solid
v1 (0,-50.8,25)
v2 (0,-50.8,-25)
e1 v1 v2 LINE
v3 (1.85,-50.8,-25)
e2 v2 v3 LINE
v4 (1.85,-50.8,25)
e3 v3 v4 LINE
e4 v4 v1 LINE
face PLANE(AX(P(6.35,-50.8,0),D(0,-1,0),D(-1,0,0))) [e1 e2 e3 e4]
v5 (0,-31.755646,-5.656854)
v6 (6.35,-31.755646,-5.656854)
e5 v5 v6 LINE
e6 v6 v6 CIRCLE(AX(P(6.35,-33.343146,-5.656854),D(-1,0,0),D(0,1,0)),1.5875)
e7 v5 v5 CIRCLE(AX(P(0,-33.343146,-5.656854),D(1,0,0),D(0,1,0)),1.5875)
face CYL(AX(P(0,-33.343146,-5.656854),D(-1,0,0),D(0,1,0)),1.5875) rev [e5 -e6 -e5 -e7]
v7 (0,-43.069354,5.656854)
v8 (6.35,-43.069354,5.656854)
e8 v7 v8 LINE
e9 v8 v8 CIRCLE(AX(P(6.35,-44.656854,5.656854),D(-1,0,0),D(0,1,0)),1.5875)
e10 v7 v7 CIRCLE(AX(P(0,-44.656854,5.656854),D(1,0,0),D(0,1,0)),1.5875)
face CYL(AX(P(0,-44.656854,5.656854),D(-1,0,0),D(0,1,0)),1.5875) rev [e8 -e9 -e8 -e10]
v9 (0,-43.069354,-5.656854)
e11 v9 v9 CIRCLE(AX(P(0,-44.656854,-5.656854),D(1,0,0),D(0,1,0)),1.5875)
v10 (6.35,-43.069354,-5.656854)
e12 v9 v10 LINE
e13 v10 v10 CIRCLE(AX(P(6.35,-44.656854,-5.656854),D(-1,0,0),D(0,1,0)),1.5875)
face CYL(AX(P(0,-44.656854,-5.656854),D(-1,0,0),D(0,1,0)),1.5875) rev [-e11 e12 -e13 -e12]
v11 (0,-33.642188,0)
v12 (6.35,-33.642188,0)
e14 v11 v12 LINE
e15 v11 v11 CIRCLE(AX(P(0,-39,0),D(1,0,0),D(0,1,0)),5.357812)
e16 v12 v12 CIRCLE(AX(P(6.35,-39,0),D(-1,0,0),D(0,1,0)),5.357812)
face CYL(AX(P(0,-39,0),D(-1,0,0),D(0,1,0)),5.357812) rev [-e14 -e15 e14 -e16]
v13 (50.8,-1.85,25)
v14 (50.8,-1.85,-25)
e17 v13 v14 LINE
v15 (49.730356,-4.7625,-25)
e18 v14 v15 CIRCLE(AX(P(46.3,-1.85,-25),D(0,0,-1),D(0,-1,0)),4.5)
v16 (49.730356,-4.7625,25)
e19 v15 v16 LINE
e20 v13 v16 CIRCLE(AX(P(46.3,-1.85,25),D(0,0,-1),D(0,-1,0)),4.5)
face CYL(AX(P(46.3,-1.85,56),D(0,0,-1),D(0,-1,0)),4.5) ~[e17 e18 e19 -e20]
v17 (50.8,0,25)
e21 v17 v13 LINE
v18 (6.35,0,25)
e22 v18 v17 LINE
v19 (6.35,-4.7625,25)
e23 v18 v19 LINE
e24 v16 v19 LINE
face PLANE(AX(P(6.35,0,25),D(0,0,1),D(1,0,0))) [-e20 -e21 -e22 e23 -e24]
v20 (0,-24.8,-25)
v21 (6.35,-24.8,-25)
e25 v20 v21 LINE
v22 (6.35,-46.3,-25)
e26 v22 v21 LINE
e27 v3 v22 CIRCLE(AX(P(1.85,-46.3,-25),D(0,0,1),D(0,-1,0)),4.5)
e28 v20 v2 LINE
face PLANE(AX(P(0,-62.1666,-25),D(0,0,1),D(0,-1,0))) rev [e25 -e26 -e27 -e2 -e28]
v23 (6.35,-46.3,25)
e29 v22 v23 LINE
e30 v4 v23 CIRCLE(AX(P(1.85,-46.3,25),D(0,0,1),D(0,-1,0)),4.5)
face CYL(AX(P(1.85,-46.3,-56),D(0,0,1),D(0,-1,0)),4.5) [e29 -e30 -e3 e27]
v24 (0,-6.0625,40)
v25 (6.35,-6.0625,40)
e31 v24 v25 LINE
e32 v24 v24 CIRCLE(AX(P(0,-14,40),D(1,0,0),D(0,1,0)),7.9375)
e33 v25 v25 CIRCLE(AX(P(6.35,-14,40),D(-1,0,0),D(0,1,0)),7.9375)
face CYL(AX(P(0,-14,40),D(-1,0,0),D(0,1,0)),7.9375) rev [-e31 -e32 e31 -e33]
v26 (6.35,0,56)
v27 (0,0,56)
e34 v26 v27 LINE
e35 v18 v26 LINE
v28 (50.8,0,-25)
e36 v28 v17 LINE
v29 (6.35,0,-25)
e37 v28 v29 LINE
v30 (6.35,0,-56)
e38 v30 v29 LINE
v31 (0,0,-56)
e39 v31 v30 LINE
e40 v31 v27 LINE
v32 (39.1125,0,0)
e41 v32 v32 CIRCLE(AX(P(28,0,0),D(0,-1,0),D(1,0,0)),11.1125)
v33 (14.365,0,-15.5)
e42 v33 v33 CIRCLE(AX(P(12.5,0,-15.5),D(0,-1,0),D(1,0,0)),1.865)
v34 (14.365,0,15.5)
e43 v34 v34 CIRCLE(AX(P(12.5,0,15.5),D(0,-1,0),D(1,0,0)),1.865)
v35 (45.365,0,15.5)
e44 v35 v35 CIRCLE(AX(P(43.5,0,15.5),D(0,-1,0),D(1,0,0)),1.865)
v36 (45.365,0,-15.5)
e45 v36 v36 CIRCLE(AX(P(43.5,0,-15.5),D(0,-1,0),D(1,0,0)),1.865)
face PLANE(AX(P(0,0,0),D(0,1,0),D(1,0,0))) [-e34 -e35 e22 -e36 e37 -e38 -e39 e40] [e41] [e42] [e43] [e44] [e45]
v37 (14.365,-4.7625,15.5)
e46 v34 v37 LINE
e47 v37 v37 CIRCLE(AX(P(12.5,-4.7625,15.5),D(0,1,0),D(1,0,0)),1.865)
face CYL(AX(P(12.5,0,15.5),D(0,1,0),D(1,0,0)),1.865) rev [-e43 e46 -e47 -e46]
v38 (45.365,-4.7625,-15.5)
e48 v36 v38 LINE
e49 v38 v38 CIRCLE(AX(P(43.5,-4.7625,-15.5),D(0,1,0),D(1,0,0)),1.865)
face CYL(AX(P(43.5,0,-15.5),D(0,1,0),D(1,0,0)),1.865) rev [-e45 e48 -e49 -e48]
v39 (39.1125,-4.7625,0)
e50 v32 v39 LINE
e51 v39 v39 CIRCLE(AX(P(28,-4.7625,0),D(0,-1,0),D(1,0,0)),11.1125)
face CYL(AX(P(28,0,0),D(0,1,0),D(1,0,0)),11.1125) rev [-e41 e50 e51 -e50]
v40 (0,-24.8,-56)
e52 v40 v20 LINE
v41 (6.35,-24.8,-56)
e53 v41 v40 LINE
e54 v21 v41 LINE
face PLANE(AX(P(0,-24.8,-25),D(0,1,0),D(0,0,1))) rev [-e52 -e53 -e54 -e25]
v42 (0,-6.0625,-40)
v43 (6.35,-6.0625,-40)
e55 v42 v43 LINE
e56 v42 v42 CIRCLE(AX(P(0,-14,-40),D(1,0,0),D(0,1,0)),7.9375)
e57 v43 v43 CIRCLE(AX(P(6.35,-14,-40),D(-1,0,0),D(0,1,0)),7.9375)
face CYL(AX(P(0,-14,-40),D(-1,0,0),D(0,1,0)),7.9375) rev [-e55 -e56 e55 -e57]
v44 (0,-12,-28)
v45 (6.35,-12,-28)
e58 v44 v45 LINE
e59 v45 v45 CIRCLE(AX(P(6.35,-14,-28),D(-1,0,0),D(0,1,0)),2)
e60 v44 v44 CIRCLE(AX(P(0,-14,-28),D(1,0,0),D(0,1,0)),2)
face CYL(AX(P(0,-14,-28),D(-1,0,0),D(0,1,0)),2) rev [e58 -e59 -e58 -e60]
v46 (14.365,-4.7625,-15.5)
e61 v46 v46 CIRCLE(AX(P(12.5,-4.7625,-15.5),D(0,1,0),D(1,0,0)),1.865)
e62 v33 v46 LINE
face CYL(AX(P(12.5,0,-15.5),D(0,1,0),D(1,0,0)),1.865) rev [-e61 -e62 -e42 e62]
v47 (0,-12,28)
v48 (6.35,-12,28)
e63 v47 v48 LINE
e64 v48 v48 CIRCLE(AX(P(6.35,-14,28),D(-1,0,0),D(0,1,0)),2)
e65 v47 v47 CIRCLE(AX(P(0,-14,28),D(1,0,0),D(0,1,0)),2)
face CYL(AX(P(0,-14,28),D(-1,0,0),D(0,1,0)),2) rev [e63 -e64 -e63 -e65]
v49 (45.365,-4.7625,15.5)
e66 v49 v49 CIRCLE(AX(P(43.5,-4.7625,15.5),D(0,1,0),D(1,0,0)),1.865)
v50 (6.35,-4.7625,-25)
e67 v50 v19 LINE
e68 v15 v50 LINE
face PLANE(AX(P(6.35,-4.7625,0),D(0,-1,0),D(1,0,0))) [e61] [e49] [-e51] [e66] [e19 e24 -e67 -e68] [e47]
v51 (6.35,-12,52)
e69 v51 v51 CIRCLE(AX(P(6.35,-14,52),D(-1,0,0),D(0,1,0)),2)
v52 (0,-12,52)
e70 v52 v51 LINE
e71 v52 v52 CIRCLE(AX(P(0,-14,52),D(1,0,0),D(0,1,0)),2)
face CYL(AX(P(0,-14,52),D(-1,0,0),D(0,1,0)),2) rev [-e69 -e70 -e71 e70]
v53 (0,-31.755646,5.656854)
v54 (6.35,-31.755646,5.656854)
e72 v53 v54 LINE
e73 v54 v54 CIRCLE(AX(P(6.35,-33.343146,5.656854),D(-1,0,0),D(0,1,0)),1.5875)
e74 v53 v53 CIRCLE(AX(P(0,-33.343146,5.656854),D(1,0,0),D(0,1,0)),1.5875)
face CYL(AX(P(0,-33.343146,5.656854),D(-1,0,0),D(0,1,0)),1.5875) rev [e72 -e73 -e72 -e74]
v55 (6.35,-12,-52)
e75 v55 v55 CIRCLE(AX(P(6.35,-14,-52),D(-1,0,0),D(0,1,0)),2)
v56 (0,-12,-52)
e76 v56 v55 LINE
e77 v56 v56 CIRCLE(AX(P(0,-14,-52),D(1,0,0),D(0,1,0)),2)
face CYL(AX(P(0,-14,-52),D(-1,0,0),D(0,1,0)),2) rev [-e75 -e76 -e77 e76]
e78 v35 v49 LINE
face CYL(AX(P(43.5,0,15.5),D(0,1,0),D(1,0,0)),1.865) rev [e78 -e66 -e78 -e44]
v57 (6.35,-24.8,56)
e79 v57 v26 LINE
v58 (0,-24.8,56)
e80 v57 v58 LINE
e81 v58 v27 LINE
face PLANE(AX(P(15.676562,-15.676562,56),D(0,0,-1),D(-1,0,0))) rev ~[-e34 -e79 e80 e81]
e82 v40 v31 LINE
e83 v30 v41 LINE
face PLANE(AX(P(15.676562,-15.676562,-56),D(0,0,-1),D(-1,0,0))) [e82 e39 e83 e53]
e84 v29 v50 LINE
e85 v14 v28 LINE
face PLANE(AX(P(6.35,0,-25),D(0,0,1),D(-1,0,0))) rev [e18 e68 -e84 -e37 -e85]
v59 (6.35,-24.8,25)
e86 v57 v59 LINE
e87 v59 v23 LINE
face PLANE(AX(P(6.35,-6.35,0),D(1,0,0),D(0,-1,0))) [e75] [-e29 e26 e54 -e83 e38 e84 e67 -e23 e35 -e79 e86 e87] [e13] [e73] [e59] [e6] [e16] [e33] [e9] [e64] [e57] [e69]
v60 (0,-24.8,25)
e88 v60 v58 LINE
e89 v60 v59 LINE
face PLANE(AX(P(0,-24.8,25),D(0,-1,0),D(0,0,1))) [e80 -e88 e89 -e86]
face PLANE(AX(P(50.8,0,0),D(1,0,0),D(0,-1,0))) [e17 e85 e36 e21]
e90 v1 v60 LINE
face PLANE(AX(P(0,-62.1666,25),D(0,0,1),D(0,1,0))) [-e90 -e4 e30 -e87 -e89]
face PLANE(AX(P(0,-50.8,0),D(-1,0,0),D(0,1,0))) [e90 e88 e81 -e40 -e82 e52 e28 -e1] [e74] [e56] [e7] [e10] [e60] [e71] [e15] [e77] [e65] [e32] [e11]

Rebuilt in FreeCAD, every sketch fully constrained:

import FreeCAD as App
import Part
import Sketcher

V = App.Vector
Q = App.Units.Quantity


def edges_at(feature, points):
    """Names of the edges that pass closest to the given points."""
    edges = feature.Shape.Edges
    near = lambda p: min(range(len(edges)), key=lambda i: edges[i].distToShape(Part.Vertex(*p))[0])
    return sorted({f"Edge{near(p) + 1}" for p in points})

doc = App.newDocument("Part")
body = doc.addObject("PartDesign::Body", "Body")

# Sketch on XY plane
sketch1 = body.newObject("Sketcher::SketchObject", "Sketch")
sketch1.AttachmentSupport = (doc.getObject("XY_Plane"), [""])
sketch1.MapMode = "FlatFace"
sketch1.addGeometry([
    Part.LineSegment(V(50.8, 0, 0), V(0, 0, 0)),  # 0
    Part.LineSegment(V(0, 0, 0), V(0, -50.8, 0)),  # 1
    Part.LineSegment(V(0, -50.8, 0), V(6.35, -50.8, 0)),  # 2
    Part.LineSegment(V(6.35, -50.8, 0), V(6.35, -6.35, 0)),  # 3
    Part.LineSegment(V(6.35, -6.35, 0), V(50.8, -6.35, 0)),  # 4
    Part.LineSegment(V(50.8, -6.35, 0), V(50.8, 0, 0)),  # 5
], False)
sketch1.addConstraint([
    Sketcher.Constraint("Coincident", 0, 2, 1, 1),
    Sketcher.Constraint("Coincident", 1, 2, 2, 1),
    Sketcher.Constraint("Coincident", 2, 2, 3, 1),
    Sketcher.Constraint("Coincident", 3, 2, 4, 1),
    Sketcher.Constraint("Coincident", 4, 2, 5, 1),
    Sketcher.Constraint("Coincident", 5, 2, 0, 1),
    Sketcher.Constraint("Horizontal", 0),
    Sketcher.Constraint("Vertical", 1),
    Sketcher.Constraint("Horizontal", 2),
    Sketcher.Constraint("Vertical", 3),
    Sketcher.Constraint("Horizontal", 4),
    Sketcher.Constraint("Vertical", 5),
    Sketcher.Constraint("Coincident", 0, 2, -1, 1),
    Sketcher.Constraint("Equal", 0, 1),
    Sketcher.Constraint("Equal", 4, 3),
    Sketcher.Constraint("DistanceX", 0, 2, 0, 1, Q("2 in")),
    Sketcher.Constraint("DistanceX", 2, 1, 2, 2, Q("0.25 in")),
])
pad1 = body.newObject("PartDesign::Pad", "Pad")
pad1.Profile = sketch1
pad1.Length = 56
pad1.Reversed = True

# Sketch on XY plane
sketch2 = body.newObject("Sketcher::SketchObject", "Sketch001")
sketch2.AttachmentSupport = (doc.getObject("XY_Plane"), [""])
sketch2.MapMode = "FlatFace"
sketch2.addGeometry([
    Part.LineSegment(V(50.8, 0, 0), V(0, 0, 0)),  # 0
    Part.LineSegment(V(0, 0, 0), V(0, -50.8, 0)),  # 1
    Part.LineSegment(V(0, -50.8, 0), V(6.35, -50.8, 0)),  # 2
    Part.LineSegment(V(6.35, -50.8, 0), V(6.35, -6.35, 0)),  # 3
    Part.LineSegment(V(6.35, -6.35, 0), V(50.8, -6.35, 0)),  # 4
    Part.LineSegment(V(50.8, -6.35, 0), V(50.8, 0, 0)),  # 5
], False)
sketch2.addConstraint([
    Sketcher.Constraint("Coincident", 0, 2, 1, 1),
    Sketcher.Constraint("Coincident", 1, 2, 2, 1),
    Sketcher.Constraint("Coincident", 2, 2, 3, 1),
    Sketcher.Constraint("Coincident", 3, 2, 4, 1),
    Sketcher.Constraint("Coincident", 4, 2, 5, 1),
    Sketcher.Constraint("Coincident", 5, 2, 0, 1),
    Sketcher.Constraint("Horizontal", 0),
    Sketcher.Constraint("Vertical", 1),
    Sketcher.Constraint("Horizontal", 2),
    Sketcher.Constraint("Vertical", 3),
    Sketcher.Constraint("Horizontal", 4),
    Sketcher.Constraint("Vertical", 5),
    Sketcher.Constraint("Coincident", 0, 2, -1, 1),
    Sketcher.Constraint("Equal", 0, 1),
    Sketcher.Constraint("Equal", 4, 3),
    Sketcher.Constraint("DistanceX", 0, 2, 0, 1, Q("2 in")),
    Sketcher.Constraint("DistanceX", 2, 1, 2, 2, Q("0.25 in")),
])
pad2 = body.newObject("PartDesign::Pad", "Pad001")
pad2.Profile = sketch2
pad2.Length = 56
doc.recompute()

fillet = body.newObject("PartDesign::Fillet", "Fillet")
fillet.Base = (pad2, edges_at(pad2, [(6.35, -50.8, 0), (6.35, -6.35, 0), (50.8, -6.35, 0)]))
fillet.Radius = 4.5

# Sketch on YZ plane
sketch3 = body.newObject("Sketcher::SketchObject", "Sketch002")
sketch3.AttachmentSupport = (doc.getObject("YZ_Plane"), [""])
sketch3.MapMode = "FlatFace"
sketch3.addGeometry([
    Part.Circle(V(-14, -40, 0), V(0, 0, 1), 7.9375),
    Part.Circle(V(-14, -28, 0), V(0, 0, 1), 2),
    Part.Circle(V(-14, -52, 0), V(0, 0, 1), 2),
], False)
sketch3.addConstraint([
    Sketcher.Constraint("Equal", 1, 2),
    Sketcher.Constraint("Vertical", 0, 3, 1, 3),
    Sketcher.Constraint("Vertical", 1, 3, 2, 3),
    Sketcher.Constraint("Diameter", 0, Q("0.625 in")),
    Sketcher.Constraint("Diameter", 1, 4.0),
    Sketcher.Constraint("DistanceX", 0, 3, -1, 1, 14.0),
    Sketcher.Constraint("DistanceY", 0, 3, -1, 1, 40.0),
    Sketcher.Constraint("DistanceY", 1, 3, -1, 1, 28.0),
    Sketcher.Constraint("DistanceY", 2, 3, -1, 1, 52.0),
])
pocket1 = body.newObject("PartDesign::Pocket", "Pocket")
pocket1.Profile = sketch3
pocket1.Type = "ThroughAll"
pocket1.Reversed = True
doc.recompute()

linearpattern = body.newObject("PartDesign::LinearPattern", "LinearPattern")
linearpattern.Originals = [pocket1]
linearpattern.Direction = (doc.getObject("Z_Axis"), [""])
linearpattern.Mode = "offset"
linearpattern.Offset = 80
linearpattern.Occurrences = 2
body.Tip = linearpattern

# Sketch on YZ plane
sketch4 = body.newObject("Sketcher::SketchObject", "Sketch003")
sketch4.AttachmentSupport = (doc.getObject("YZ_Plane"), [""])
sketch4.MapMode = "FlatFace"
sketch4.addGeometry([
    Part.Circle(V(-39, 0, 0), V(0, 0, 1), 5.357812),  # 0
    Part.Circle(V(-44.656854, 5.656854, 0), V(0, 0, 1), 1.5875),  # 1
    Part.Circle(V(-33.343146, 5.656854, 0), V(0, 0, 1), 1.5875),  # 2
    Part.Circle(V(-33.343146, -5.656854, 0), V(0, 0, 1), 1.5875),  # 3
    Part.Circle(V(-44.656854, -5.656854, 0), V(0, 0, 1), 1.5875),  # 4
], False)
sketch4.addConstraint([
    Sketcher.Constraint("Equal", 1, 2),
    Sketcher.Constraint("Equal", 2, 3),
    Sketcher.Constraint("Equal", 3, 4),
    Sketcher.Constraint("Symmetric", 2, 3, 3, 3, -1),
    Sketcher.Constraint("Symmetric", 1, 3, 4, 3, -1),
    Sketcher.Constraint("PointOnObject", 0, 3, -1),
    Sketcher.Constraint("Horizontal", 1, 3, 2, 3),
    Sketcher.Constraint("Diameter", 0, Q("0.421875 in")),
    Sketcher.Constraint("Diameter", 1, Q("0.125 in")),
    Sketcher.Constraint("DistanceX", 0, 3, -1, 1, 39.0),
    Sketcher.Constraint("DistanceX", 1, 3, 2, 3, 11.313708),
    Sketcher.Constraint("DistanceX", 1, 3, -1, 1, 44.656854),
    Sketcher.Constraint("DistanceY", -1, 1, 1, 3, 5.656854),
])
pocket2 = body.newObject("PartDesign::Pocket", "Pocket001")
pocket2.Profile = sketch4
pocket2.Type = "ThroughAll"
pocket2.Midplane = True

# Sketch on XZ plane
sketch5 = body.newObject("Sketcher::SketchObject", "Sketch004")
sketch5.AttachmentSupport = (doc.getObject("XZ_Plane"), [""])
sketch5.MapMode = "FlatFace"
sketch5.addGeometry([
    Part.LineSegment(V(6.35, 76.1187, 0), V(6.35, 25, 0)),
    Part.LineSegment(V(6.35, 25, 0), V(66.35, 25, 0)),
    Part.LineSegment(V(66.35, 25, 0), V(66.35, 76.1187, 0)),
    Part.LineSegment(V(66.35, 76.1187, 0), V(6.35, 76.1187, 0)),
], False)
sketch5.addConstraint([
    Sketcher.Constraint("Coincident", 0, 2, 1, 1),
    Sketcher.Constraint("Coincident", 1, 2, 2, 1),
    Sketcher.Constraint("Coincident", 2, 2, 3, 1),
    Sketcher.Constraint("Coincident", 3, 2, 0, 1),
    Sketcher.Constraint("Vertical", 0),
    Sketcher.Constraint("Horizontal", 1),
    Sketcher.Constraint("Vertical", 2),
    Sketcher.Constraint("Horizontal", 3),
    Sketcher.Constraint("DistanceX", -1, 1, 0, 2, Q("0.25 in")),
    Sketcher.Constraint("DistanceX", 1, 1, 1, 2, 60.0),
    Sketcher.Constraint("DistanceY", 0, 2, 0, 1, 51.1187),
    Sketcher.Constraint("DistanceY", -1, 1, 0, 2, 25.0),
])
pocket3 = body.newObject("PartDesign::Pocket", "Pocket002")
pocket3.Profile = sketch5
pocket3.Type = "ThroughAll"
pocket3.Midplane = True
doc.recompute()

mirrored = body.newObject("PartDesign::Mirrored", "Mirrored")
mirrored.Originals = [pocket3]
mirrored.MirrorPlane = (doc.getObject("XY_Plane"), [""])
body.Tip = mirrored

# Sketch on XZ plane
sketch6 = body.newObject("Sketcher::SketchObject", "Sketch005")
sketch6.AttachmentSupport = (doc.getObject("XZ_Plane"), [""])
sketch6.MapMode = "FlatFace"
sketch6.addGeometry([
    Part.Circle(V(43.5, 15.5, 0), V(0, 0, 1), 1.865),  # 0
    Part.Circle(V(43.5, -15.5, 0), V(0, 0, 1), 1.865),  # 1
    Part.Circle(V(12.5, 15.5, 0), V(0, 0, 1), 1.865),  # 2
    Part.Circle(V(12.5, -15.5, 0), V(0, 0, 1), 1.865),  # 3
    Part.Circle(V(28, 0, 0), V(0, 0, 1), 11.1125),  # 4
], False)
sketch6.addConstraint([
    Sketcher.Constraint("Equal", 0, 1),
    Sketcher.Constraint("Equal", 1, 2),
    Sketcher.Constraint("Equal", 2, 3),
    Sketcher.Constraint("Symmetric", 0, 3, 1, 3, -1),
    Sketcher.Constraint("Symmetric", 2, 3, 3, 3, -1),
    Sketcher.Constraint("PointOnObject", 4, 3, -1),
    Sketcher.Constraint("Horizontal", 0, 3, 2, 3),
    Sketcher.Constraint("Diameter", 4, Q("0.875 in")),
    Sketcher.Constraint("Diameter", 0, 3.73),
    Sketcher.Constraint("DistanceX", -1, 1, 0, 3, 43.5),
    Sketcher.Constraint("DistanceY", -1, 1, 0, 3, 15.5),
    Sketcher.Constraint("DistanceX", -1, 1, 2, 3, 12.5),
    Sketcher.Constraint("DistanceX", -1, 1, 4, 3, 28.0),
])
pocket4 = body.newObject("PartDesign::Pocket", "Pocket003")
pocket4.Profile = sketch6
pocket4.Type = "ThroughAll"
pocket4.Midplane = True

# Sketch on XY plane
sketch7 = body.newObject("Sketcher::SketchObject", "Sketch006")
sketch7.AttachmentSupport = (doc.getObject("XY_Plane"), [""])
sketch7.MapMode = "FlatFace"
sketch7.addGeometry([
    Part.LineSegment(V(6.35, -4.7625, 0), V(6.35, -17.0125, 0)),
    Part.LineSegment(V(6.35, -17.0125, 0), V(66.35, -17.0125, 0)),
    Part.LineSegment(V(66.35, -17.0125, 0), V(66.35, -4.7625, 0)),
    Part.LineSegment(V(66.35, -4.7625, 0), V(6.35, -4.7625, 0)),
], False)
sketch7.addConstraint([
    Sketcher.Constraint("Coincident", 0, 2, 1, 1),
    Sketcher.Constraint("Coincident", 1, 2, 2, 1),
    Sketcher.Constraint("Coincident", 2, 2, 3, 1),
    Sketcher.Constraint("Coincident", 3, 2, 0, 1),
    Sketcher.Constraint("Vertical", 0),
    Sketcher.Constraint("Horizontal", 1),
    Sketcher.Constraint("Vertical", 2),
    Sketcher.Constraint("Horizontal", 3),
    Sketcher.Constraint("DistanceX", -1, 1, 0, 2, Q("0.25 in")),
    Sketcher.Constraint("DistanceY", 2, 2, -1, 1, Q("0.1875 in")),
    Sketcher.Constraint("DistanceX", 1, 1, 1, 2, 60.0),
    Sketcher.Constraint("DistanceY", 0, 2, 0, 1, 12.25),
])
pocket5 = body.newObject("PartDesign::Pocket", "Pocket004")
pocket5.Profile = sketch7
pocket5.Type = "ThroughAll"
pocket5.Midplane = True

# Sketch on YZ plane
sketch8 = body.newObject("Sketcher::SketchObject", "Sketch007")
sketch8.AttachmentSupport = (doc.getObject("YZ_Plane"), [""])
sketch8.MapMode = "FlatFace"
sketch8.addGeometry([
    Part.LineSegment(V(-62.1666, 69.7638, 0), V(-62.1666, 25, 0)),
    Part.LineSegment(V(-62.1666, 25, 0), V(-24.8, 25, 0)),
    Part.LineSegment(V(-24.8, 25, 0), V(-24.8, 69.7638, 0)),
    Part.LineSegment(V(-24.8, 69.7638, 0), V(-62.1666, 69.7638, 0)),
], False)
sketch8.addConstraint([
    Sketcher.Constraint("Coincident", 0, 2, 1, 1),
    Sketcher.Constraint("Coincident", 1, 2, 2, 1),
    Sketcher.Constraint("Coincident", 2, 2, 3, 1),
    Sketcher.Constraint("Coincident", 3, 2, 0, 1),
    Sketcher.Constraint("Vertical", 0),
    Sketcher.Constraint("Horizontal", 1),
    Sketcher.Constraint("Vertical", 2),
    Sketcher.Constraint("Horizontal", 3),
    Sketcher.Constraint("DistanceX", 1, 1, 1, 2, 37.3666),
    Sketcher.Constraint("DistanceY", 0, 2, 0, 1, 44.7638),
    Sketcher.Constraint("DistanceX", 0, 2, -1, 1, 62.1666),
    Sketcher.Constraint("DistanceY", -1, 1, 0, 2, 25.0),
])
pocket6 = body.newObject("PartDesign::Pocket", "Pocket005")
pocket6.Profile = sketch8
pocket6.Type = "ThroughAll"
pocket6.Midplane = True
doc.recompute()

mirrored2 = body.newObject("PartDesign::Mirrored", "Mirrored001")
mirrored2.Originals = [pocket6]
mirrored2.MirrorPlane = (doc.getObject("XY_Plane"), [""])
body.Tip = mirrored2

doc.recompute()
